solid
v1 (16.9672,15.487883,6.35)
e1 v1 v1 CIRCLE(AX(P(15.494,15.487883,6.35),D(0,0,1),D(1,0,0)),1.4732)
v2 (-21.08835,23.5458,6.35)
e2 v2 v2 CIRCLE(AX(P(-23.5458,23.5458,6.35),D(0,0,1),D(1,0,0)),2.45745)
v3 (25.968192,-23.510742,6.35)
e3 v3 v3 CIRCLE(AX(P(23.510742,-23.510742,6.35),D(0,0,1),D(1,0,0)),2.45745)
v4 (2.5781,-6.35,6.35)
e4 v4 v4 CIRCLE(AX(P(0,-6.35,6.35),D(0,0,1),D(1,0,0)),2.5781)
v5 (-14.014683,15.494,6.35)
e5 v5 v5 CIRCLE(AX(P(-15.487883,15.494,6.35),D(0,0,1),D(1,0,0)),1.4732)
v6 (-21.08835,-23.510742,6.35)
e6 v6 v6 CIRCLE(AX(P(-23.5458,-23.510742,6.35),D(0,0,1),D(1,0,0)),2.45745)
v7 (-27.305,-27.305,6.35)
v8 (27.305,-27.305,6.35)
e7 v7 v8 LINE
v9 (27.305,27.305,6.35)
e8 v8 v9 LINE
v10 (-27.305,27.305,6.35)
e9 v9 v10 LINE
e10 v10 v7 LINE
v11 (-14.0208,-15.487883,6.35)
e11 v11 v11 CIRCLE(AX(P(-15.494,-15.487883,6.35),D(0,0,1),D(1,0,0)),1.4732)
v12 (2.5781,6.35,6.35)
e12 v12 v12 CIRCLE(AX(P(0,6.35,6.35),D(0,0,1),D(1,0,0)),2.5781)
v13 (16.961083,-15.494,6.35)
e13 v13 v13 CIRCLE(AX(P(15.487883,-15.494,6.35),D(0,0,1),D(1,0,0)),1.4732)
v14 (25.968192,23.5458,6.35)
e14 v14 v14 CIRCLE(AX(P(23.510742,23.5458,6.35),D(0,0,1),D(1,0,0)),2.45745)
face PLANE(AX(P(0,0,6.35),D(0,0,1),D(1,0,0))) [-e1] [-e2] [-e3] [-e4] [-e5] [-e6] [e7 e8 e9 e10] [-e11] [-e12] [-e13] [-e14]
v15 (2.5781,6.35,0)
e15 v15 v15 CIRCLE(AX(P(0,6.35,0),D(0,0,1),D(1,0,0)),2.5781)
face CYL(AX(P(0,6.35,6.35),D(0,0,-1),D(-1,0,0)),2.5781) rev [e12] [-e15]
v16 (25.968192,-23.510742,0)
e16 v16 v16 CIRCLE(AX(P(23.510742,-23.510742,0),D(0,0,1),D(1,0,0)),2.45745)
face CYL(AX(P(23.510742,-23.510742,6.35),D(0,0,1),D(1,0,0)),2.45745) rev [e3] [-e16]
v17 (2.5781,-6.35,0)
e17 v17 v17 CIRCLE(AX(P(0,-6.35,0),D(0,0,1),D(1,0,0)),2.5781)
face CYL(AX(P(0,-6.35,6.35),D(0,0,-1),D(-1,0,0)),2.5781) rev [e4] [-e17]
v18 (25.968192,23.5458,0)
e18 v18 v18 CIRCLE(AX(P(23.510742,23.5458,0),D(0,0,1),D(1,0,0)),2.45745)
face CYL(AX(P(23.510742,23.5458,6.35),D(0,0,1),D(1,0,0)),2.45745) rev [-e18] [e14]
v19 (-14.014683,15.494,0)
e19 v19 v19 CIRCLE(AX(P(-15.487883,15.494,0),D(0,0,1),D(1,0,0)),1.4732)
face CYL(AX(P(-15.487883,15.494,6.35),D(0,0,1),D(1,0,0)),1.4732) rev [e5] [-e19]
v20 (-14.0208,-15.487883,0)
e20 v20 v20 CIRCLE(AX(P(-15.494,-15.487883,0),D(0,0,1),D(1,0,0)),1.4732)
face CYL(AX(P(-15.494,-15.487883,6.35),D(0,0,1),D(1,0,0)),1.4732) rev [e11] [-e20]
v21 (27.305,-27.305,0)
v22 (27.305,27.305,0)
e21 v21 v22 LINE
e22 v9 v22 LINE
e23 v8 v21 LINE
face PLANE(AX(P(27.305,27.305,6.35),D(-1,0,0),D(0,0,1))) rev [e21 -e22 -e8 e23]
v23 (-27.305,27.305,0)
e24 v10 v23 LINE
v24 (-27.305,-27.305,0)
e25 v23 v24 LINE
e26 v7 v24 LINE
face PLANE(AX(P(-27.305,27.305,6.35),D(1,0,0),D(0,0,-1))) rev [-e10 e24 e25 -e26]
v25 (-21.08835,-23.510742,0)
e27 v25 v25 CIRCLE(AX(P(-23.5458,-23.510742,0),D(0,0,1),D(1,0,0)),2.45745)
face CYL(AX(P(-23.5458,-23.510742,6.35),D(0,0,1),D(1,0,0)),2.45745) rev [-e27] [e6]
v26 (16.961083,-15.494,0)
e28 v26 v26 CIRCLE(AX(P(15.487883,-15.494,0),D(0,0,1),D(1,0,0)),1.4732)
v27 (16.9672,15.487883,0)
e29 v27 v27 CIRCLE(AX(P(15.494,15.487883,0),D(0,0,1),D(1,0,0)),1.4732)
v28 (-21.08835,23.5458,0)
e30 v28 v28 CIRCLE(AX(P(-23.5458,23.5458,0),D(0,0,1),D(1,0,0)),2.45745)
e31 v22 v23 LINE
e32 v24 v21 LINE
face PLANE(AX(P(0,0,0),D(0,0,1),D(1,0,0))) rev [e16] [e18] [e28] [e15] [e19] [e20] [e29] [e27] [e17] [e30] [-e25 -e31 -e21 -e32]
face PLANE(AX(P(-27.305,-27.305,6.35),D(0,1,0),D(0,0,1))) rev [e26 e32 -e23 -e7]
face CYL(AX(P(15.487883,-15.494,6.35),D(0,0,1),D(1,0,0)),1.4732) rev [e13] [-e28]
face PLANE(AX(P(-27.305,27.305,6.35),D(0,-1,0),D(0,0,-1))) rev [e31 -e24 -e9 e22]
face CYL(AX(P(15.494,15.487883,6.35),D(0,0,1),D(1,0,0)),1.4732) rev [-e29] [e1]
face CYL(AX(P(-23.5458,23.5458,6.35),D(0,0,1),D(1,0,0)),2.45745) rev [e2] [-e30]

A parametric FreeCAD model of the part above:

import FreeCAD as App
import Part
import Sketcher

V = App.Vector
Q = App.Units.Quantity


def add_polygon(sketch, points):
    """Adds a closed chain of lines whose ends are joined by coincident constraints."""
    first, n = sketch.GeometryCount, len(points)
    for a, b in zip(points, points[1:] + points[:1]):
        sketch.addGeometry(Part.LineSegment(App.Vector(*a, 0), App.Vector(*b, 0)), False)
    for i in range(n):
        sketch.addConstraint(Sketcher.Constraint("Coincident", first + i, 2, first + (i + 1) % n, 1))

doc = App.newDocument("Part")
body = doc.addObject("PartDesign::Body", "Body")

# Sketch on XY plane
sketch1 = doc.addObject("Sketcher::SketchObject", "Sketch")
body.addObject(sketch1)
sketch1.AttachmentSupport = (doc.XY_Plane, [""])
sketch1.MapMode = "FlatFace"
add_polygon(sketch1, [(-27, 27), (-27, -27), (27, -27), (27, 27)])  # lines 0-3
sketch1.addConstraint([
    Sketcher.Constraint("Vertical", 0),
    Sketcher.Constraint("Horizontal", 1),
    Sketcher.Constraint("Vertical", 2),
    Sketcher.Constraint("Horizontal", 3),
    Sketcher.Constraint("Symmetric", 0, 2, 2, 2, -1, 1),
    Sketcher.Constraint("Equal", 3, 0),
    Sketcher.Constraint("DistanceX", 1, 1, 1, 2, Q("2.15 in")),
])
pad1 = doc.addObject("PartDesign::Pad", "Pad")
body.addObject(pad1)
pad1.Profile = sketch1
pad1.Length = Q("0.25 in")

# Sketch on XY plane
sketch2 = doc.addObject("Sketcher::SketchObject", "Sketch001")
body.addObject(sketch2)
sketch2.AttachmentSupport = (doc.XY_Plane, [""])
sketch2.MapMode = "FlatFace"
sketch2.AttachmentOffset = App.Placement(V(0, 0, 0.25 * 25.4), App.Rotation())
sketch2.addGeometry([
    Part.Circle(V(-23.5, 23.5, 0), V(0, 0, 1), 2.5),
    Part.Circle(V(23.5, 23.5, 0), V(0, 0, 1), 2.5),
    Part.Circle(V(23.5, -23.5, 0), V(0, 0, 1), 2.5),
    Part.Circle(V(-23.5, -23.5, 0), V(0, 0, 1), 2.5),
], False)
sketch2.addConstraint([
    Sketcher.Constraint("Equal", 0, 1),
    Sketcher.Constraint("Equal", 1, 2),
    Sketcher.Constraint("Equal", 2, 3),
    Sketcher.Constraint("Horizontal", 0, 3, 1, 3),
    Sketcher.Constraint("Horizontal", 2, 3, 3, 3),
    Sketcher.Constraint("Vertical", 1, 3, 2, 3),
    Sketcher.Constraint("Vertical", 0, 3, 3, 3),
    Sketcher.Constraint("Diameter", 0, Q("0.1935 in")),
    Sketcher.Constraint("DistanceX", 0, 3, -1, 1, Q("0.927 in")),
    Sketcher.Constraint("DistanceY", -1, 1, 0, 3, Q("0.927 in")),
    Sketcher.Constraint("DistanceX", -1, 1, 1, 3, 23.510742),
    Sketcher.Constraint("DistanceY", 2, 3, -1, 1, 23.510742),
])
doc.recompute()
hole = doc.addObject("PartDesign::Hole", "Hole")
body.addObject(hole)
hole.Profile = sketch2
hole.ThreadType = "None"
hole.Diameter = Q("0.1935 in")
hole.DepthType = "ThroughAll"

# Sketch on XY plane
sketch3 = doc.addObject("Sketcher::SketchObject", "Sketch002")
body.addObject(sketch3)
sketch3.AttachmentSupport = (doc.XY_Plane, [""])
sketch3.MapMode = "FlatFace"
sketch3.AttachmentOffset = App.Placement(V(0, 0, 0.25 * 25.4), App.Rotation())
sketch3.addGeometry([
    Part.Circle(V(-15.5, 15.5, 0), V(0, 0, 1), 1.5),
    Part.Circle(V(15.5, 15.5, 0), V(0, 0, 1), 1.5),
    Part.Circle(V(15.5, -15.5, 0), V(0, 0, 1), 1.5),
    Part.Circle(V(-15.5, -15.5, 0), V(0, 0, 1), 1.5),
], False)
sketch3.addConstraint([
    Sketcher.Constraint("Equal", 0, 1),
    Sketcher.Constraint("Equal", 1, 2),
    Sketcher.Constraint("Equal", 2, 3),
    Sketcher.Constraint("Symmetric", 0, 3, 2, 3, -1, 1),
    Sketcher.Constraint("Symmetric", 1, 3, 3, 3, -1, 1),
    Sketcher.Constraint("Diameter", 0, Q("0.116 in")),
    Sketcher.Constraint("DistanceY", -1, 1, 0, 3, Q("0.61 in")),
    Sketcher.Constraint("DistanceX", -1, 1, 1, 3, Q("0.61 in")),
    Sketcher.Constraint("DistanceX", 0, 3, -1, 1, 15.487883),
    Sketcher.Constraint("DistanceY", -1, 1, 1, 3, 15.487883),
])
doc.recompute()
hole2 = doc.addObject("PartDesign::Hole", "Hole001")
body.addObject(hole2)
hole2.Profile = sketch3
hole2.ThreadType = "None"
hole2.Diameter = Q("0.116 in")
hole2.DepthType = "ThroughAll"

# Sketch on XY plane
sketch4 = doc.addObject("Sketcher::SketchObject", "Sketch003")
body.addObject(sketch4)
sketch4.AttachmentSupport = (doc.XY_Plane, [""])
sketch4.MapMode = "FlatFace"
sketch4.addGeometry([
    Part.Circle(V(0, 6.3, 0), V(0, 0, 1), 2.6),
    Part.Circle(V(0, -6.3, 0), V(0, 0, 1), 2.6),
], False)
sketch4.addConstraint([
    Sketcher.Constraint("Equal", 0, 1),
    Sketcher.Constraint("Symmetric", 0, 3, 1, 3, -1, 1),
    Sketcher.Constraint("PointOnObject", 0, 3, -2),
    Sketcher.Constraint("Diameter", 0, Q("0.203 in")),
    Sketcher.Constraint("DistanceY", 1, 3, 0, 3, Q("0.5 in")),
])
pocket1 = doc.addObject("PartDesign::Pocket", "Pocket")
body.addObject(pocket1)
pocket1.Profile = sketch4
pocket1.Length = Q("0.25 in")
pocket1.Reversed = True

doc.recompute()
